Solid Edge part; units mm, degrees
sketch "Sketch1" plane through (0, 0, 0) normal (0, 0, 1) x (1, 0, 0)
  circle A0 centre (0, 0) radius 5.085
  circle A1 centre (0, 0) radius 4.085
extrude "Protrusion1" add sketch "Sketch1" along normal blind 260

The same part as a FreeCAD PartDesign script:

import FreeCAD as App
import Part
import Sketcher
from FreeCAD import Vector

doc = App.newDocument("Part")
body = doc.addObject("PartDesign::Body", "Body")

sketch1 = body.newObject("Sketcher::SketchObject", "Sketch")
sketch1.AttachmentSupport = (doc.getObject("XY_Plane"), [""])
sketch1.MapMode = "FlatFace"
sketch1.addGeometry(Part.Circle(Vector(0, 0, 0), Vector(0, 0, 1), 5.1), False)
sketch1.addGeometry(Part.Circle(Vector(0, 0, 0), Vector(0, 0, 1), 4.1), False)
sketch1.addConstraint(Sketcher.Constraint("Coincident", 0, 3, -1, 1))
sketch1.addConstraint(Sketcher.Constraint("Coincident", 1, 3, -1, 1))
sketch1.addConstraint(Sketcher.Constraint("Diameter", 0, 10.17))
sketch1.addConstraint(Sketcher.Constraint("Diameter", 1, 8.17))
pad1 = body.newObject("PartDesign::Pad", "Pad")
pad1.Profile = sketch1
pad1.Length = 260

doc.recompute()
